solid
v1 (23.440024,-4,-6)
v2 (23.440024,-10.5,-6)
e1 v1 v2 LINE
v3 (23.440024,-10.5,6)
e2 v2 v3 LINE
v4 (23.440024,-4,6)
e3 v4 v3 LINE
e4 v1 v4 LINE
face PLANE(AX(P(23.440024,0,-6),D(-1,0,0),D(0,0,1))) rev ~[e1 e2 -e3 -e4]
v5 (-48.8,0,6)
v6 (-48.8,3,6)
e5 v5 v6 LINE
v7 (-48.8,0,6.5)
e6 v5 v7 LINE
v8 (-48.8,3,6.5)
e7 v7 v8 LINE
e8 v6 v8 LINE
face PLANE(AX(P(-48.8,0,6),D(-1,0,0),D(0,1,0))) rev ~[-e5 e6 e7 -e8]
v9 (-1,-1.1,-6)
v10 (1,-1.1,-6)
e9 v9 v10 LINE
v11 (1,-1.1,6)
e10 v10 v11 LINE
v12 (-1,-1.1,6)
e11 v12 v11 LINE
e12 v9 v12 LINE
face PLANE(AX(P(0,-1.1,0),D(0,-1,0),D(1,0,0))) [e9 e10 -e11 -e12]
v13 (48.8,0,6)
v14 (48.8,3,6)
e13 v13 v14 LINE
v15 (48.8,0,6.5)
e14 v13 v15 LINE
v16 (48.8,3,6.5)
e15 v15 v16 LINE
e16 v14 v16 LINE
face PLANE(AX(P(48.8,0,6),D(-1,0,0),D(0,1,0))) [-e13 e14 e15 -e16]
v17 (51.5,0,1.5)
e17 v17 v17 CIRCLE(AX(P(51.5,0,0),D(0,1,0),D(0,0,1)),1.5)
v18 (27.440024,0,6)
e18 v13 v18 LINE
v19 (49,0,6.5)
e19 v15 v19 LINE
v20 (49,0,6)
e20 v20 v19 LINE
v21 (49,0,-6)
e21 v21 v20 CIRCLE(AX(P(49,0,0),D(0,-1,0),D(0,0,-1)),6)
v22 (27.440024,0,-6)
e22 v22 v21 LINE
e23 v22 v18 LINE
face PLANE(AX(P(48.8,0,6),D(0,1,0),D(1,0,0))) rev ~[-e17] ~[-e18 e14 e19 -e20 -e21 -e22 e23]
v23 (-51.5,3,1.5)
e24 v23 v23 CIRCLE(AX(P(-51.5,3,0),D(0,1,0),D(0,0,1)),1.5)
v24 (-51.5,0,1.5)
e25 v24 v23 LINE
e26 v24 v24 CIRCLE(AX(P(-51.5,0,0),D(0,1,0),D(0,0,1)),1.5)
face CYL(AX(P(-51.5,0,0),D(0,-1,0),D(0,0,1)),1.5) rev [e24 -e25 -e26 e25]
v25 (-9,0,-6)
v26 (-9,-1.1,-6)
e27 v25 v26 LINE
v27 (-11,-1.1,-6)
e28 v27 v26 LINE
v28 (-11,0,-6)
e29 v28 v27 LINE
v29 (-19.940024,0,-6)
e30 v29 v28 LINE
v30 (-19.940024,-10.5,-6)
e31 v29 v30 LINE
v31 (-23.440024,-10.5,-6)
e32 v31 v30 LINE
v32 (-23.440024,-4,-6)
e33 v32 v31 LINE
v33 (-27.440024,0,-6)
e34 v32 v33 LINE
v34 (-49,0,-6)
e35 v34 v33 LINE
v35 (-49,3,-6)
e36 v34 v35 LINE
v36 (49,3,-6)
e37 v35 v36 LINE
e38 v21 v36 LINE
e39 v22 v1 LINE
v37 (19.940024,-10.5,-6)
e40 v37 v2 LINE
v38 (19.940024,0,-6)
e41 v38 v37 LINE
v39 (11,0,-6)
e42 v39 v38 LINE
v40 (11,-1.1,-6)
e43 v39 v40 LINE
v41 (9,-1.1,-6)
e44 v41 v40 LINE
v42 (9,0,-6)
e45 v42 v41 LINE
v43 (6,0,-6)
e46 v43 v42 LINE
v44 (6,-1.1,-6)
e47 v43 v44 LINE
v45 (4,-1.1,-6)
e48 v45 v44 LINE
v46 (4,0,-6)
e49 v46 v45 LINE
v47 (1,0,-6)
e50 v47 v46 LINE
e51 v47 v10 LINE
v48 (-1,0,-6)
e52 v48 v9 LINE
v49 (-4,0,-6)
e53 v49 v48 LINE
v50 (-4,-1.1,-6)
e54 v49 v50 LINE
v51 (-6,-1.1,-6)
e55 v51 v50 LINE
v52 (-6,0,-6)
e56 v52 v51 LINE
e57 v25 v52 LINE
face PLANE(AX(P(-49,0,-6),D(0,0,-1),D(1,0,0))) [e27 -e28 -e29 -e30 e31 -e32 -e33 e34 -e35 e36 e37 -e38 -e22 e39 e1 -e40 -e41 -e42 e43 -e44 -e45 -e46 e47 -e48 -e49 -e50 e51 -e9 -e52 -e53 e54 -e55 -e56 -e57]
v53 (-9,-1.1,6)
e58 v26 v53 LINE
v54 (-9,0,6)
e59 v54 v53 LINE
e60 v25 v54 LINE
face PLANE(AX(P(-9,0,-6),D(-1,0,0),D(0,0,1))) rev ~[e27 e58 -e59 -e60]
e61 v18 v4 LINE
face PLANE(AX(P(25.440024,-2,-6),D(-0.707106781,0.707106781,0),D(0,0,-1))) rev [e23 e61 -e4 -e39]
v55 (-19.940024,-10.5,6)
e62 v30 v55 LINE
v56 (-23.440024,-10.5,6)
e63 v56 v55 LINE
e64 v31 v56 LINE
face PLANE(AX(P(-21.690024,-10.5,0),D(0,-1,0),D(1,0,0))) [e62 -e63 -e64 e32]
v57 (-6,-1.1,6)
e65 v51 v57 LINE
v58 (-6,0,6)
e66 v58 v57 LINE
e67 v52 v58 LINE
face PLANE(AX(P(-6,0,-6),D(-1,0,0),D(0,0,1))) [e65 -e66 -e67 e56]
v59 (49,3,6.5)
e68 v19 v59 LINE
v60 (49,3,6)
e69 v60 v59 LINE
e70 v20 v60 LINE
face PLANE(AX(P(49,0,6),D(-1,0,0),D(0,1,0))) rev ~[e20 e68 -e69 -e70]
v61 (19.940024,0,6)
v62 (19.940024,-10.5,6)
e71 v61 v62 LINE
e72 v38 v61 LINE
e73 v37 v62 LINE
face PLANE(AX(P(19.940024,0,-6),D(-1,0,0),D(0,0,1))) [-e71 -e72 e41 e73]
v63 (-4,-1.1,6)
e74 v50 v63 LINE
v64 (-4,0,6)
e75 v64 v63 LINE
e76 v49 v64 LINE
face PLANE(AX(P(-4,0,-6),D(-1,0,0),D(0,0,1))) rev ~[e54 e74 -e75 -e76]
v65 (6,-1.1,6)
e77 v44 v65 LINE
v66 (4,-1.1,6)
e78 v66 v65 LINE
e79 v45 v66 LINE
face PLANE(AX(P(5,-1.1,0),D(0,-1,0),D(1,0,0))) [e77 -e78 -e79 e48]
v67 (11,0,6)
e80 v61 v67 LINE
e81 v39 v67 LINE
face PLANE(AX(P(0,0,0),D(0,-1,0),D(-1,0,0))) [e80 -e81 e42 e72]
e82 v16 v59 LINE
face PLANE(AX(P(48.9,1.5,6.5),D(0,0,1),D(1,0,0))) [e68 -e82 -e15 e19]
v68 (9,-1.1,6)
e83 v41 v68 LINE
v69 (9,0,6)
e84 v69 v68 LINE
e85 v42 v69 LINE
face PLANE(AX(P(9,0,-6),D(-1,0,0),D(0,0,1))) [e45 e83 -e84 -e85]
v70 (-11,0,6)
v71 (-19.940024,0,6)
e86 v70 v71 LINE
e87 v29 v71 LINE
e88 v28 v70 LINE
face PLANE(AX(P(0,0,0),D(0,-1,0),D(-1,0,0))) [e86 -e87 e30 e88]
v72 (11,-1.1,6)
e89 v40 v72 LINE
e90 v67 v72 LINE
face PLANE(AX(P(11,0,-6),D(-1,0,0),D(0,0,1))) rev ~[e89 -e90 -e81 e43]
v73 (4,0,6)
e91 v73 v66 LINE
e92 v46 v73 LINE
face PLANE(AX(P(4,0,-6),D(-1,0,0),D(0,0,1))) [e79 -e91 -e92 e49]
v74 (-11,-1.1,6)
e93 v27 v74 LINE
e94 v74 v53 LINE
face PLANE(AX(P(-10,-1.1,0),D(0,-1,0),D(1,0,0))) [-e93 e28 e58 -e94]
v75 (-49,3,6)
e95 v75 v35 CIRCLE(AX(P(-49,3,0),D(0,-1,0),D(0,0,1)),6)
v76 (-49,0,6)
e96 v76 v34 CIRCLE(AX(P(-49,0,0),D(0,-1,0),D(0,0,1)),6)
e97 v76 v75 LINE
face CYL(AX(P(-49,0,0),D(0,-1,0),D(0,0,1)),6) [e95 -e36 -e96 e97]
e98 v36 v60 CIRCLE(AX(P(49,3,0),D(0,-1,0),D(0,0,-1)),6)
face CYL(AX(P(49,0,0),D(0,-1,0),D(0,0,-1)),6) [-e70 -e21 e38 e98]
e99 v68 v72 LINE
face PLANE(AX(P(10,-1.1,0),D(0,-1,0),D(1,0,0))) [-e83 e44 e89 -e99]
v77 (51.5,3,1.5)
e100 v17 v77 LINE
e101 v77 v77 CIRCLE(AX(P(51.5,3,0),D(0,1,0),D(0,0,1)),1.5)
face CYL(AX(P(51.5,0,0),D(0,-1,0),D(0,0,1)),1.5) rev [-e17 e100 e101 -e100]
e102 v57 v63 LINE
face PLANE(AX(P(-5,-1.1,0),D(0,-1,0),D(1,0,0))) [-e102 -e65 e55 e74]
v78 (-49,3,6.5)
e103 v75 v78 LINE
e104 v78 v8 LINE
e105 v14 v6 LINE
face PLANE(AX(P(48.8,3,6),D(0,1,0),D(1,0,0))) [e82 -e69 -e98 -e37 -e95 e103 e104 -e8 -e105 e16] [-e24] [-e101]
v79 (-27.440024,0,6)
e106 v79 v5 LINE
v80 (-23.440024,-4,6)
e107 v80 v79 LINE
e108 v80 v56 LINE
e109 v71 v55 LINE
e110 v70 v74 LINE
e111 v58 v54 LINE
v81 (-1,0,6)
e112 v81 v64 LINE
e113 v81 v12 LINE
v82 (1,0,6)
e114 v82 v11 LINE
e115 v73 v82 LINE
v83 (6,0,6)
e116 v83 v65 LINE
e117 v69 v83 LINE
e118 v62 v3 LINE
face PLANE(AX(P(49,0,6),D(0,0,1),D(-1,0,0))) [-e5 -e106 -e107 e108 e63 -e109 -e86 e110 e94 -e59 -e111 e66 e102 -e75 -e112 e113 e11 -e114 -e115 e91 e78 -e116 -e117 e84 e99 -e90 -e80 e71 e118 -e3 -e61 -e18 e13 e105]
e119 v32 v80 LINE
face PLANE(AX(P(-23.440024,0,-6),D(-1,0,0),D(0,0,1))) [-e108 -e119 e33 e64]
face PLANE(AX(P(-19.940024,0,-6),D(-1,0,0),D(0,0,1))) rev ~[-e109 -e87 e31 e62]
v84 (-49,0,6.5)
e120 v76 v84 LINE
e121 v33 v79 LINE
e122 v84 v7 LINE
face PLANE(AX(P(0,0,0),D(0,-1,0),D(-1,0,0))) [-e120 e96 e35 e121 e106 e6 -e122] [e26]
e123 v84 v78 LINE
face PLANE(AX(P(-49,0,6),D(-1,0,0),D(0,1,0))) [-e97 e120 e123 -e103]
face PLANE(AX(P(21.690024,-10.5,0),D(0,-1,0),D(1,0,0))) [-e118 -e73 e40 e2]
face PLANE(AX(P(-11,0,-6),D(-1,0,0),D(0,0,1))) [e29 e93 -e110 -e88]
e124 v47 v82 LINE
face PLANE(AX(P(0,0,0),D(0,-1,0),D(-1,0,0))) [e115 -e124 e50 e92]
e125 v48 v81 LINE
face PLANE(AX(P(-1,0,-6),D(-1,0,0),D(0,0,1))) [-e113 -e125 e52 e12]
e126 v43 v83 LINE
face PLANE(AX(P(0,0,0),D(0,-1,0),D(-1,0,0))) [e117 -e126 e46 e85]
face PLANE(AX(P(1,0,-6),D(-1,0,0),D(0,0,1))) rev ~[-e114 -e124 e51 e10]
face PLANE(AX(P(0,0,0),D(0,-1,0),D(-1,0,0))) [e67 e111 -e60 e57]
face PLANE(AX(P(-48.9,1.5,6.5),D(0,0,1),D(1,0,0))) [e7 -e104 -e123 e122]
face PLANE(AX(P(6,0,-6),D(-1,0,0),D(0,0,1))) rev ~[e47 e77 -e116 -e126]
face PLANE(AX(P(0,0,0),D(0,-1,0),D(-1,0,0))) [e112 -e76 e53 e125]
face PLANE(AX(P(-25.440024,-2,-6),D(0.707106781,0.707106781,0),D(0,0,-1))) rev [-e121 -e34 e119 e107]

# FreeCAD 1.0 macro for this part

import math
import FreeCAD as App
import Part
import Sketcher
from FreeCAD import Vector
Q = App.Units.Quantity


def edges_at(feature, points):
    """Names of the edges that pass closest to the given points."""
    edges = feature.Shape.Edges
    near = lambda p: min(range(len(edges)), key=lambda i: edges[i].distToShape(Part.Vertex(*p))[0])
    return sorted({f"Edge{near(p) + 1}" for p in points})

doc = App.newDocument("Part")
body = doc.addObject("PartDesign::Body", "Body")

sketch1 = body.newObject("Sketcher::SketchObject", "Sketch")
sketch1.AttachmentSupport = (doc.getObject("XZ_Plane"), [""])
sketch1.MapMode = "FlatFace"
sketch1.addGeometry([
    Part.LineSegment(Vector(49, -6, 0), Vector(-49, -6, 0)),
    Part.ArcOfCircle(Part.Circle(Vector(-49, 0, 0), Vector(0, 0, 1), 6), math.radians(90), math.radians(270)),
    Part.LineSegment(Vector(-49, 6, 0), Vector(49, 6, 0)),
    Part.ArcOfCircle(Part.Circle(Vector(49, 0, 0), Vector(0, 0, 1), 6), math.radians(-90), math.radians(90)),
    Part.Circle(Vector(51.5, 0, 0), Vector(0, 0, 1), 1.5),
    Part.Circle(Vector(-51.5, 0, 0), Vector(0, 0, 1), 1.5),
], False)
sketch1.addConstraint([
    Sketcher.Constraint("Tangent", 0, 2, 1, 2),
    Sketcher.Constraint("Tangent", 1, 1, 2, 1),
    Sketcher.Constraint("Tangent", 2, 2, 3, 2),
    Sketcher.Constraint("Tangent", 3, 1, 0, 1),
    Sketcher.Constraint("Horizontal", 0),
    Sketcher.Constraint("Horizontal", 2),
    Sketcher.Constraint("Equal", 4, 5),
    Sketcher.Constraint("Symmetric", 1, 3, 3, 3, -1, 1),
    Sketcher.Constraint("Symmetric", 4, 3, 5, 3, -1, 1),
    Sketcher.Constraint("PointOnObject", 4, 3, -1),
    Sketcher.Constraint("Diameter", 4, Q("3 mm")),
    Sketcher.Constraint("Radius", 1, Q("6 mm")),
    Sketcher.Constraint("DistanceX", 0, 2, 0, 1, Q("98 mm")),
    Sketcher.Constraint("DistanceX", 5, 3, 4, 3, Q("103 mm")),
])
pad1 = body.newObject("PartDesign::Pad", "Pad")
pad1.Profile = sketch1
pad1.Length = 3
pad1.Reversed = True

sketch2 = body.newObject("Sketcher::SketchObject", "Sketch001")
sketch2.AttachmentSupport = (doc.getObject("XZ_Plane"), [""])
sketch2.MapMode = "FlatFace"
sketch2.addGeometry([
    Part.LineSegment(Vector(-23.4, 6, 0), Vector(-23.4, -6, 0)),
    Part.LineSegment(Vector(-23.4, -6, 0), Vector(-19.9, -6, 0)),
    Part.LineSegment(Vector(-19.9, -6, 0), Vector(-19.9, 6, 0)),
    Part.LineSegment(Vector(-19.9, 6, 0), Vector(-23.4, 6, 0)),
    Part.LineSegment(Vector(19.9, 6, 0), Vector(19.9, -6, 0)),
    Part.LineSegment(Vector(19.9, -6, 0), Vector(23.4, -6, 0)),
    Part.LineSegment(Vector(23.4, -6, 0), Vector(23.4, 6, 0)),
    Part.LineSegment(Vector(23.4, 6, 0), Vector(19.9, 6, 0)),
], False)
sketch2.addConstraint([
    Sketcher.Constraint("Coincident", 0, 2, 1, 1),
    Sketcher.Constraint("Coincident", 1, 2, 2, 1),
    Sketcher.Constraint("Coincident", 2, 2, 3, 1),
    Sketcher.Constraint("Coincident", 3, 2, 0, 1),
    Sketcher.Constraint("Coincident", 4, 2, 5, 1),
    Sketcher.Constraint("Coincident", 5, 2, 6, 1),
    Sketcher.Constraint("Coincident", 6, 2, 7, 1),
    Sketcher.Constraint("Coincident", 7, 2, 4, 1),
    Sketcher.Constraint("Vertical", 0),
    Sketcher.Constraint("Horizontal", 1),
    Sketcher.Constraint("Vertical", 2),
    Sketcher.Constraint("Horizontal", 3),
    Sketcher.Constraint("Vertical", 4),
    Sketcher.Constraint("Horizontal", 5),
    Sketcher.Constraint("Vertical", 6),
    Sketcher.Constraint("Horizontal", 7),
    Sketcher.Constraint("Symmetric", 2, 2, 4, 2, -1, 1),
    Sketcher.Constraint("Symmetric", 0, 2, 6, 2, -1, 1),
    Sketcher.Constraint("Horizontal", 1, 2, 4, 2),
    Sketcher.Constraint("DistanceY", 0, 2, 0, 1, Q("12 mm")),
    Sketcher.Constraint("DistanceX", 1, 1, 1, 2, Q("3.5 mm")),
    Sketcher.Constraint("DistanceX", 0, 2, -1, 1, Q("23.440024 mm")),
])
pad2 = body.newObject("PartDesign::Pad", "Pad001")
pad2.Profile = sketch2
pad2.Length = 10.5

sketch3 = body.newObject("Sketcher::SketchObject", "Sketch002")
sketch3.AttachmentSupport = (doc.getObject("XZ_Plane"), [""])
sketch3.MapMode = "FlatFace"
sketch3.addGeometry([
    Part.LineSegment(Vector(4, 6, 0), Vector(4, -6, 0)),
    Part.LineSegment(Vector(4, -6, 0), Vector(6, -6, 0)),
    Part.LineSegment(Vector(6, -6, 0), Vector(6, 6, 0)),
    Part.LineSegment(Vector(6, 6, 0), Vector(4, 6, 0)),
    Part.LineSegment(Vector(-1, 6, 0), Vector(-1, -6, 0)),
    Part.LineSegment(Vector(-1, -6, 0), Vector(1, -6, 0)),
    Part.LineSegment(Vector(1, -6, 0), Vector(1, 6, 0)),
    Part.LineSegment(Vector(1, 6, 0), Vector(-1, 6, 0)),
    Part.LineSegment(Vector(9, 6, 0), Vector(9, -6, 0)),
    Part.LineSegment(Vector(9, -6, 0), Vector(11, -6, 0)),
    Part.LineSegment(Vector(11, -6, 0), Vector(11, 6, 0)),
    Part.LineSegment(Vector(11, 6, 0), Vector(9, 6, 0)),
    Part.LineSegment(Vector(-6, 6, 0), Vector(-6, -6, 0)),
    Part.LineSegment(Vector(-6, -6, 0), Vector(-4, -6, 0)),
    Part.LineSegment(Vector(-4, -6, 0), Vector(-4, 6, 0)),
    Part.LineSegment(Vector(-4, 6, 0), Vector(-6, 6, 0)),
    Part.LineSegment(Vector(-11, 6, 0), Vector(-11, -6, 0)),
    Part.LineSegment(Vector(-11, -6, 0), Vector(-9, -6, 0)),
    Part.LineSegment(Vector(-9, -6, 0), Vector(-9, 6, 0)),
    Part.LineSegment(Vector(-9, 6, 0), Vector(-11, 6, 0)),
], False)
sketch3.addConstraint([
    Sketcher.Constraint("Coincident", 0, 2, 1, 1),
    Sketcher.Constraint("Coincident", 1, 2, 2, 1),
    Sketcher.Constraint("Coincident", 2, 2, 3, 1),
    Sketcher.Constraint("Coincident", 3, 2, 0, 1),
    Sketcher.Constraint("Coincident", 4, 2, 5, 1),
    Sketcher.Constraint("Coincident", 5, 2, 6, 1),
    Sketcher.Constraint("Coincident", 6, 2, 7, 1),
    Sketcher.Constraint("Coincident", 7, 2, 4, 1),
    Sketcher.Constraint("Coincident", 8, 2, 9, 1),
    Sketcher.Constraint("Coincident", 9, 2, 10, 1),
    Sketcher.Constraint("Coincident", 10, 2, 11, 1),
    Sketcher.Constraint("Coincident", 11, 2, 8, 1),
    Sketcher.Constraint("Coincident", 12, 2, 13, 1),
    Sketcher.Constraint("Coincident", 13, 2, 14, 1),
    Sketcher.Constraint("Coincident", 14, 2, 15, 1),
    Sketcher.Constraint("Coincident", 15, 2, 12, 1),
    Sketcher.Constraint("Coincident", 16, 2, 17, 1),
    Sketcher.Constraint("Coincident", 17, 2, 18, 1),
    Sketcher.Constraint("Coincident", 18, 2, 19, 1),
    Sketcher.Constraint("Coincident", 19, 2, 16, 1),
    Sketcher.Constraint("Vertical", 0),
    Sketcher.Constraint("Horizontal", 1),
    Sketcher.Constraint("Vertical", 2),
    Sketcher.Constraint("Horizontal", 3),
    Sketcher.Constraint("Vertical", 4),
    Sketcher.Constraint("Horizontal", 5),
    Sketcher.Constraint("Vertical", 6),
    Sketcher.Constraint("Horizontal", 7),
    Sketcher.Constraint("Vertical", 8),
    Sketcher.Constraint("Horizontal", 9),
    Sketcher.Constraint("Vertical", 10),
    Sketcher.Constraint("Horizontal", 11),
    Sketcher.Constraint("Vertical", 12),
    Sketcher.Constraint("Horizontal", 13),
    Sketcher.Constraint("Vertical", 14),
    Sketcher.Constraint("Horizontal", 15),
    Sketcher.Constraint("Vertical", 16),
    Sketcher.Constraint("Horizontal", 17),
    Sketcher.Constraint("Vertical", 18),
    Sketcher.Constraint("Horizontal", 19),
    Sketcher.Constraint("Symmetric", 4, 2, 6, 2, -1, 1),
    Sketcher.Constraint("Symmetric", 2, 2, 12, 2, -1, 1),
    Sketcher.Constraint("Symmetric", 0, 2, 14, 2, -1, 1),
    Sketcher.Constraint("Symmetric", 10, 2, 16, 2, -1, 1),
    Sketcher.Constraint("Symmetric", 8, 2, 18, 2, -1, 1),
    Sketcher.Constraint("Horizontal", 1, 2, 4, 2),
    Sketcher.Constraint("Horizontal", 3, 2, 6, 2),
    Sketcher.Constraint("Horizontal", 5, 2, 8, 2),
    Sketcher.Constraint("Horizontal", 7, 2, 10, 2),
    Sketcher.Constraint("Equal", 3, 5),
    Sketcher.Constraint("Equal", 7, 9),
    Sketcher.Constraint("DistanceX", 1, 1, 1, 2, Q("2 mm")),
    Sketcher.Constraint("DistanceY", 0, 2, 0, 1, Q("12 mm")),
    Sketcher.Constraint("DistanceX", -1, 1, 0, 2, Q("4 mm")),
    Sketcher.Constraint("DistanceX", -1, 1, 8, 2, Q("9 mm")),
])
pad3 = body.newObject("PartDesign::Pad", "Pad002")
pad3.Profile = sketch3
pad3.Length = 1.1

sketch4 = body.newObject("Sketcher::SketchObject", "Sketch003")
sketch4.AttachmentSupport = (doc.getObject("XY_Plane"), [""])
sketch4.MapMode = "FlatFace"
sketch4.AttachmentOffset = App.Placement(Vector(0, 0, 6), App.Rotation())
sketch4.addGeometry([
    Part.LineSegment(Vector(48.8, 3, 0), Vector(48.8, 0, 0)),
    Part.LineSegment(Vector(48.8, 0, 0), Vector(49, 0, 0)),
    Part.LineSegment(Vector(49, 0, 0), Vector(49, 3, 0)),
    Part.LineSegment(Vector(49, 3, 0), Vector(48.8, 3, 0)),
    Part.LineSegment(Vector(-49, 3, 0), Vector(-49, 0, 0)),
    Part.LineSegment(Vector(-49, 0, 0), Vector(-48.8, 0, 0)),
    Part.LineSegment(Vector(-48.8, 0, 0), Vector(-48.8, 3, 0)),
    Part.LineSegment(Vector(-48.8, 3, 0), Vector(-49, 3, 0)),
], False)
sketch4.addConstraint([
    Sketcher.Constraint("Coincident", 0, 2, 1, 1),
    Sketcher.Constraint("Coincident", 1, 2, 2, 1),
    Sketcher.Constraint("Coincident", 2, 2, 3, 1),
    Sketcher.Constraint("Coincident", 3, 2, 0, 1),
    Sketcher.Constraint("Coincident", 4, 2, 5, 1),
    Sketcher.Constraint("Coincident", 5, 2, 6, 1),
    Sketcher.Constraint("Coincident", 6, 2, 7, 1),
    Sketcher.Constraint("Coincident", 7, 2, 4, 1),
    Sketcher.Constraint("Vertical", 0),
    Sketcher.Constraint("Horizontal", 1),
    Sketcher.Constraint("Vertical", 2),
    Sketcher.Constraint("Horizontal", 3),
    Sketcher.Constraint("Vertical", 4),
    Sketcher.Constraint("Horizontal", 5),
    Sketcher.Constraint("Vertical", 6),
    Sketcher.Constraint("Horizontal", 7),
    Sketcher.Constraint("Symmetric", 1, 2, 4, 2, -1, 1),
    Sketcher.Constraint("Symmetric", 0, 2, 5, 2, -2),
    Sketcher.Constraint("Horizontal", 3, 2, 6, 2),
    Sketcher.Constraint("DistanceY", 0, 2, 0, 1, Q("3 mm")),
    Sketcher.Constraint("DistanceX", 1, 1, 1, 2, Q("0.2 mm")),
    Sketcher.Constraint("DistanceX", -1, 1, 1, 2, Q("49 mm")),
])
pad4 = body.newObject("PartDesign::Pad", "Pad003")
pad4.Profile = sketch4
pad4.Length = 0.5
doc.recompute()

chamfer = body.newObject("PartDesign::Chamfer", "Chamfer")
chamfer.Base = (pad4, edges_at(pad4, [(-23.44, 0, 0), (23.44, 0, 0)]))
chamfer.Size = 4

doc.recompute()
